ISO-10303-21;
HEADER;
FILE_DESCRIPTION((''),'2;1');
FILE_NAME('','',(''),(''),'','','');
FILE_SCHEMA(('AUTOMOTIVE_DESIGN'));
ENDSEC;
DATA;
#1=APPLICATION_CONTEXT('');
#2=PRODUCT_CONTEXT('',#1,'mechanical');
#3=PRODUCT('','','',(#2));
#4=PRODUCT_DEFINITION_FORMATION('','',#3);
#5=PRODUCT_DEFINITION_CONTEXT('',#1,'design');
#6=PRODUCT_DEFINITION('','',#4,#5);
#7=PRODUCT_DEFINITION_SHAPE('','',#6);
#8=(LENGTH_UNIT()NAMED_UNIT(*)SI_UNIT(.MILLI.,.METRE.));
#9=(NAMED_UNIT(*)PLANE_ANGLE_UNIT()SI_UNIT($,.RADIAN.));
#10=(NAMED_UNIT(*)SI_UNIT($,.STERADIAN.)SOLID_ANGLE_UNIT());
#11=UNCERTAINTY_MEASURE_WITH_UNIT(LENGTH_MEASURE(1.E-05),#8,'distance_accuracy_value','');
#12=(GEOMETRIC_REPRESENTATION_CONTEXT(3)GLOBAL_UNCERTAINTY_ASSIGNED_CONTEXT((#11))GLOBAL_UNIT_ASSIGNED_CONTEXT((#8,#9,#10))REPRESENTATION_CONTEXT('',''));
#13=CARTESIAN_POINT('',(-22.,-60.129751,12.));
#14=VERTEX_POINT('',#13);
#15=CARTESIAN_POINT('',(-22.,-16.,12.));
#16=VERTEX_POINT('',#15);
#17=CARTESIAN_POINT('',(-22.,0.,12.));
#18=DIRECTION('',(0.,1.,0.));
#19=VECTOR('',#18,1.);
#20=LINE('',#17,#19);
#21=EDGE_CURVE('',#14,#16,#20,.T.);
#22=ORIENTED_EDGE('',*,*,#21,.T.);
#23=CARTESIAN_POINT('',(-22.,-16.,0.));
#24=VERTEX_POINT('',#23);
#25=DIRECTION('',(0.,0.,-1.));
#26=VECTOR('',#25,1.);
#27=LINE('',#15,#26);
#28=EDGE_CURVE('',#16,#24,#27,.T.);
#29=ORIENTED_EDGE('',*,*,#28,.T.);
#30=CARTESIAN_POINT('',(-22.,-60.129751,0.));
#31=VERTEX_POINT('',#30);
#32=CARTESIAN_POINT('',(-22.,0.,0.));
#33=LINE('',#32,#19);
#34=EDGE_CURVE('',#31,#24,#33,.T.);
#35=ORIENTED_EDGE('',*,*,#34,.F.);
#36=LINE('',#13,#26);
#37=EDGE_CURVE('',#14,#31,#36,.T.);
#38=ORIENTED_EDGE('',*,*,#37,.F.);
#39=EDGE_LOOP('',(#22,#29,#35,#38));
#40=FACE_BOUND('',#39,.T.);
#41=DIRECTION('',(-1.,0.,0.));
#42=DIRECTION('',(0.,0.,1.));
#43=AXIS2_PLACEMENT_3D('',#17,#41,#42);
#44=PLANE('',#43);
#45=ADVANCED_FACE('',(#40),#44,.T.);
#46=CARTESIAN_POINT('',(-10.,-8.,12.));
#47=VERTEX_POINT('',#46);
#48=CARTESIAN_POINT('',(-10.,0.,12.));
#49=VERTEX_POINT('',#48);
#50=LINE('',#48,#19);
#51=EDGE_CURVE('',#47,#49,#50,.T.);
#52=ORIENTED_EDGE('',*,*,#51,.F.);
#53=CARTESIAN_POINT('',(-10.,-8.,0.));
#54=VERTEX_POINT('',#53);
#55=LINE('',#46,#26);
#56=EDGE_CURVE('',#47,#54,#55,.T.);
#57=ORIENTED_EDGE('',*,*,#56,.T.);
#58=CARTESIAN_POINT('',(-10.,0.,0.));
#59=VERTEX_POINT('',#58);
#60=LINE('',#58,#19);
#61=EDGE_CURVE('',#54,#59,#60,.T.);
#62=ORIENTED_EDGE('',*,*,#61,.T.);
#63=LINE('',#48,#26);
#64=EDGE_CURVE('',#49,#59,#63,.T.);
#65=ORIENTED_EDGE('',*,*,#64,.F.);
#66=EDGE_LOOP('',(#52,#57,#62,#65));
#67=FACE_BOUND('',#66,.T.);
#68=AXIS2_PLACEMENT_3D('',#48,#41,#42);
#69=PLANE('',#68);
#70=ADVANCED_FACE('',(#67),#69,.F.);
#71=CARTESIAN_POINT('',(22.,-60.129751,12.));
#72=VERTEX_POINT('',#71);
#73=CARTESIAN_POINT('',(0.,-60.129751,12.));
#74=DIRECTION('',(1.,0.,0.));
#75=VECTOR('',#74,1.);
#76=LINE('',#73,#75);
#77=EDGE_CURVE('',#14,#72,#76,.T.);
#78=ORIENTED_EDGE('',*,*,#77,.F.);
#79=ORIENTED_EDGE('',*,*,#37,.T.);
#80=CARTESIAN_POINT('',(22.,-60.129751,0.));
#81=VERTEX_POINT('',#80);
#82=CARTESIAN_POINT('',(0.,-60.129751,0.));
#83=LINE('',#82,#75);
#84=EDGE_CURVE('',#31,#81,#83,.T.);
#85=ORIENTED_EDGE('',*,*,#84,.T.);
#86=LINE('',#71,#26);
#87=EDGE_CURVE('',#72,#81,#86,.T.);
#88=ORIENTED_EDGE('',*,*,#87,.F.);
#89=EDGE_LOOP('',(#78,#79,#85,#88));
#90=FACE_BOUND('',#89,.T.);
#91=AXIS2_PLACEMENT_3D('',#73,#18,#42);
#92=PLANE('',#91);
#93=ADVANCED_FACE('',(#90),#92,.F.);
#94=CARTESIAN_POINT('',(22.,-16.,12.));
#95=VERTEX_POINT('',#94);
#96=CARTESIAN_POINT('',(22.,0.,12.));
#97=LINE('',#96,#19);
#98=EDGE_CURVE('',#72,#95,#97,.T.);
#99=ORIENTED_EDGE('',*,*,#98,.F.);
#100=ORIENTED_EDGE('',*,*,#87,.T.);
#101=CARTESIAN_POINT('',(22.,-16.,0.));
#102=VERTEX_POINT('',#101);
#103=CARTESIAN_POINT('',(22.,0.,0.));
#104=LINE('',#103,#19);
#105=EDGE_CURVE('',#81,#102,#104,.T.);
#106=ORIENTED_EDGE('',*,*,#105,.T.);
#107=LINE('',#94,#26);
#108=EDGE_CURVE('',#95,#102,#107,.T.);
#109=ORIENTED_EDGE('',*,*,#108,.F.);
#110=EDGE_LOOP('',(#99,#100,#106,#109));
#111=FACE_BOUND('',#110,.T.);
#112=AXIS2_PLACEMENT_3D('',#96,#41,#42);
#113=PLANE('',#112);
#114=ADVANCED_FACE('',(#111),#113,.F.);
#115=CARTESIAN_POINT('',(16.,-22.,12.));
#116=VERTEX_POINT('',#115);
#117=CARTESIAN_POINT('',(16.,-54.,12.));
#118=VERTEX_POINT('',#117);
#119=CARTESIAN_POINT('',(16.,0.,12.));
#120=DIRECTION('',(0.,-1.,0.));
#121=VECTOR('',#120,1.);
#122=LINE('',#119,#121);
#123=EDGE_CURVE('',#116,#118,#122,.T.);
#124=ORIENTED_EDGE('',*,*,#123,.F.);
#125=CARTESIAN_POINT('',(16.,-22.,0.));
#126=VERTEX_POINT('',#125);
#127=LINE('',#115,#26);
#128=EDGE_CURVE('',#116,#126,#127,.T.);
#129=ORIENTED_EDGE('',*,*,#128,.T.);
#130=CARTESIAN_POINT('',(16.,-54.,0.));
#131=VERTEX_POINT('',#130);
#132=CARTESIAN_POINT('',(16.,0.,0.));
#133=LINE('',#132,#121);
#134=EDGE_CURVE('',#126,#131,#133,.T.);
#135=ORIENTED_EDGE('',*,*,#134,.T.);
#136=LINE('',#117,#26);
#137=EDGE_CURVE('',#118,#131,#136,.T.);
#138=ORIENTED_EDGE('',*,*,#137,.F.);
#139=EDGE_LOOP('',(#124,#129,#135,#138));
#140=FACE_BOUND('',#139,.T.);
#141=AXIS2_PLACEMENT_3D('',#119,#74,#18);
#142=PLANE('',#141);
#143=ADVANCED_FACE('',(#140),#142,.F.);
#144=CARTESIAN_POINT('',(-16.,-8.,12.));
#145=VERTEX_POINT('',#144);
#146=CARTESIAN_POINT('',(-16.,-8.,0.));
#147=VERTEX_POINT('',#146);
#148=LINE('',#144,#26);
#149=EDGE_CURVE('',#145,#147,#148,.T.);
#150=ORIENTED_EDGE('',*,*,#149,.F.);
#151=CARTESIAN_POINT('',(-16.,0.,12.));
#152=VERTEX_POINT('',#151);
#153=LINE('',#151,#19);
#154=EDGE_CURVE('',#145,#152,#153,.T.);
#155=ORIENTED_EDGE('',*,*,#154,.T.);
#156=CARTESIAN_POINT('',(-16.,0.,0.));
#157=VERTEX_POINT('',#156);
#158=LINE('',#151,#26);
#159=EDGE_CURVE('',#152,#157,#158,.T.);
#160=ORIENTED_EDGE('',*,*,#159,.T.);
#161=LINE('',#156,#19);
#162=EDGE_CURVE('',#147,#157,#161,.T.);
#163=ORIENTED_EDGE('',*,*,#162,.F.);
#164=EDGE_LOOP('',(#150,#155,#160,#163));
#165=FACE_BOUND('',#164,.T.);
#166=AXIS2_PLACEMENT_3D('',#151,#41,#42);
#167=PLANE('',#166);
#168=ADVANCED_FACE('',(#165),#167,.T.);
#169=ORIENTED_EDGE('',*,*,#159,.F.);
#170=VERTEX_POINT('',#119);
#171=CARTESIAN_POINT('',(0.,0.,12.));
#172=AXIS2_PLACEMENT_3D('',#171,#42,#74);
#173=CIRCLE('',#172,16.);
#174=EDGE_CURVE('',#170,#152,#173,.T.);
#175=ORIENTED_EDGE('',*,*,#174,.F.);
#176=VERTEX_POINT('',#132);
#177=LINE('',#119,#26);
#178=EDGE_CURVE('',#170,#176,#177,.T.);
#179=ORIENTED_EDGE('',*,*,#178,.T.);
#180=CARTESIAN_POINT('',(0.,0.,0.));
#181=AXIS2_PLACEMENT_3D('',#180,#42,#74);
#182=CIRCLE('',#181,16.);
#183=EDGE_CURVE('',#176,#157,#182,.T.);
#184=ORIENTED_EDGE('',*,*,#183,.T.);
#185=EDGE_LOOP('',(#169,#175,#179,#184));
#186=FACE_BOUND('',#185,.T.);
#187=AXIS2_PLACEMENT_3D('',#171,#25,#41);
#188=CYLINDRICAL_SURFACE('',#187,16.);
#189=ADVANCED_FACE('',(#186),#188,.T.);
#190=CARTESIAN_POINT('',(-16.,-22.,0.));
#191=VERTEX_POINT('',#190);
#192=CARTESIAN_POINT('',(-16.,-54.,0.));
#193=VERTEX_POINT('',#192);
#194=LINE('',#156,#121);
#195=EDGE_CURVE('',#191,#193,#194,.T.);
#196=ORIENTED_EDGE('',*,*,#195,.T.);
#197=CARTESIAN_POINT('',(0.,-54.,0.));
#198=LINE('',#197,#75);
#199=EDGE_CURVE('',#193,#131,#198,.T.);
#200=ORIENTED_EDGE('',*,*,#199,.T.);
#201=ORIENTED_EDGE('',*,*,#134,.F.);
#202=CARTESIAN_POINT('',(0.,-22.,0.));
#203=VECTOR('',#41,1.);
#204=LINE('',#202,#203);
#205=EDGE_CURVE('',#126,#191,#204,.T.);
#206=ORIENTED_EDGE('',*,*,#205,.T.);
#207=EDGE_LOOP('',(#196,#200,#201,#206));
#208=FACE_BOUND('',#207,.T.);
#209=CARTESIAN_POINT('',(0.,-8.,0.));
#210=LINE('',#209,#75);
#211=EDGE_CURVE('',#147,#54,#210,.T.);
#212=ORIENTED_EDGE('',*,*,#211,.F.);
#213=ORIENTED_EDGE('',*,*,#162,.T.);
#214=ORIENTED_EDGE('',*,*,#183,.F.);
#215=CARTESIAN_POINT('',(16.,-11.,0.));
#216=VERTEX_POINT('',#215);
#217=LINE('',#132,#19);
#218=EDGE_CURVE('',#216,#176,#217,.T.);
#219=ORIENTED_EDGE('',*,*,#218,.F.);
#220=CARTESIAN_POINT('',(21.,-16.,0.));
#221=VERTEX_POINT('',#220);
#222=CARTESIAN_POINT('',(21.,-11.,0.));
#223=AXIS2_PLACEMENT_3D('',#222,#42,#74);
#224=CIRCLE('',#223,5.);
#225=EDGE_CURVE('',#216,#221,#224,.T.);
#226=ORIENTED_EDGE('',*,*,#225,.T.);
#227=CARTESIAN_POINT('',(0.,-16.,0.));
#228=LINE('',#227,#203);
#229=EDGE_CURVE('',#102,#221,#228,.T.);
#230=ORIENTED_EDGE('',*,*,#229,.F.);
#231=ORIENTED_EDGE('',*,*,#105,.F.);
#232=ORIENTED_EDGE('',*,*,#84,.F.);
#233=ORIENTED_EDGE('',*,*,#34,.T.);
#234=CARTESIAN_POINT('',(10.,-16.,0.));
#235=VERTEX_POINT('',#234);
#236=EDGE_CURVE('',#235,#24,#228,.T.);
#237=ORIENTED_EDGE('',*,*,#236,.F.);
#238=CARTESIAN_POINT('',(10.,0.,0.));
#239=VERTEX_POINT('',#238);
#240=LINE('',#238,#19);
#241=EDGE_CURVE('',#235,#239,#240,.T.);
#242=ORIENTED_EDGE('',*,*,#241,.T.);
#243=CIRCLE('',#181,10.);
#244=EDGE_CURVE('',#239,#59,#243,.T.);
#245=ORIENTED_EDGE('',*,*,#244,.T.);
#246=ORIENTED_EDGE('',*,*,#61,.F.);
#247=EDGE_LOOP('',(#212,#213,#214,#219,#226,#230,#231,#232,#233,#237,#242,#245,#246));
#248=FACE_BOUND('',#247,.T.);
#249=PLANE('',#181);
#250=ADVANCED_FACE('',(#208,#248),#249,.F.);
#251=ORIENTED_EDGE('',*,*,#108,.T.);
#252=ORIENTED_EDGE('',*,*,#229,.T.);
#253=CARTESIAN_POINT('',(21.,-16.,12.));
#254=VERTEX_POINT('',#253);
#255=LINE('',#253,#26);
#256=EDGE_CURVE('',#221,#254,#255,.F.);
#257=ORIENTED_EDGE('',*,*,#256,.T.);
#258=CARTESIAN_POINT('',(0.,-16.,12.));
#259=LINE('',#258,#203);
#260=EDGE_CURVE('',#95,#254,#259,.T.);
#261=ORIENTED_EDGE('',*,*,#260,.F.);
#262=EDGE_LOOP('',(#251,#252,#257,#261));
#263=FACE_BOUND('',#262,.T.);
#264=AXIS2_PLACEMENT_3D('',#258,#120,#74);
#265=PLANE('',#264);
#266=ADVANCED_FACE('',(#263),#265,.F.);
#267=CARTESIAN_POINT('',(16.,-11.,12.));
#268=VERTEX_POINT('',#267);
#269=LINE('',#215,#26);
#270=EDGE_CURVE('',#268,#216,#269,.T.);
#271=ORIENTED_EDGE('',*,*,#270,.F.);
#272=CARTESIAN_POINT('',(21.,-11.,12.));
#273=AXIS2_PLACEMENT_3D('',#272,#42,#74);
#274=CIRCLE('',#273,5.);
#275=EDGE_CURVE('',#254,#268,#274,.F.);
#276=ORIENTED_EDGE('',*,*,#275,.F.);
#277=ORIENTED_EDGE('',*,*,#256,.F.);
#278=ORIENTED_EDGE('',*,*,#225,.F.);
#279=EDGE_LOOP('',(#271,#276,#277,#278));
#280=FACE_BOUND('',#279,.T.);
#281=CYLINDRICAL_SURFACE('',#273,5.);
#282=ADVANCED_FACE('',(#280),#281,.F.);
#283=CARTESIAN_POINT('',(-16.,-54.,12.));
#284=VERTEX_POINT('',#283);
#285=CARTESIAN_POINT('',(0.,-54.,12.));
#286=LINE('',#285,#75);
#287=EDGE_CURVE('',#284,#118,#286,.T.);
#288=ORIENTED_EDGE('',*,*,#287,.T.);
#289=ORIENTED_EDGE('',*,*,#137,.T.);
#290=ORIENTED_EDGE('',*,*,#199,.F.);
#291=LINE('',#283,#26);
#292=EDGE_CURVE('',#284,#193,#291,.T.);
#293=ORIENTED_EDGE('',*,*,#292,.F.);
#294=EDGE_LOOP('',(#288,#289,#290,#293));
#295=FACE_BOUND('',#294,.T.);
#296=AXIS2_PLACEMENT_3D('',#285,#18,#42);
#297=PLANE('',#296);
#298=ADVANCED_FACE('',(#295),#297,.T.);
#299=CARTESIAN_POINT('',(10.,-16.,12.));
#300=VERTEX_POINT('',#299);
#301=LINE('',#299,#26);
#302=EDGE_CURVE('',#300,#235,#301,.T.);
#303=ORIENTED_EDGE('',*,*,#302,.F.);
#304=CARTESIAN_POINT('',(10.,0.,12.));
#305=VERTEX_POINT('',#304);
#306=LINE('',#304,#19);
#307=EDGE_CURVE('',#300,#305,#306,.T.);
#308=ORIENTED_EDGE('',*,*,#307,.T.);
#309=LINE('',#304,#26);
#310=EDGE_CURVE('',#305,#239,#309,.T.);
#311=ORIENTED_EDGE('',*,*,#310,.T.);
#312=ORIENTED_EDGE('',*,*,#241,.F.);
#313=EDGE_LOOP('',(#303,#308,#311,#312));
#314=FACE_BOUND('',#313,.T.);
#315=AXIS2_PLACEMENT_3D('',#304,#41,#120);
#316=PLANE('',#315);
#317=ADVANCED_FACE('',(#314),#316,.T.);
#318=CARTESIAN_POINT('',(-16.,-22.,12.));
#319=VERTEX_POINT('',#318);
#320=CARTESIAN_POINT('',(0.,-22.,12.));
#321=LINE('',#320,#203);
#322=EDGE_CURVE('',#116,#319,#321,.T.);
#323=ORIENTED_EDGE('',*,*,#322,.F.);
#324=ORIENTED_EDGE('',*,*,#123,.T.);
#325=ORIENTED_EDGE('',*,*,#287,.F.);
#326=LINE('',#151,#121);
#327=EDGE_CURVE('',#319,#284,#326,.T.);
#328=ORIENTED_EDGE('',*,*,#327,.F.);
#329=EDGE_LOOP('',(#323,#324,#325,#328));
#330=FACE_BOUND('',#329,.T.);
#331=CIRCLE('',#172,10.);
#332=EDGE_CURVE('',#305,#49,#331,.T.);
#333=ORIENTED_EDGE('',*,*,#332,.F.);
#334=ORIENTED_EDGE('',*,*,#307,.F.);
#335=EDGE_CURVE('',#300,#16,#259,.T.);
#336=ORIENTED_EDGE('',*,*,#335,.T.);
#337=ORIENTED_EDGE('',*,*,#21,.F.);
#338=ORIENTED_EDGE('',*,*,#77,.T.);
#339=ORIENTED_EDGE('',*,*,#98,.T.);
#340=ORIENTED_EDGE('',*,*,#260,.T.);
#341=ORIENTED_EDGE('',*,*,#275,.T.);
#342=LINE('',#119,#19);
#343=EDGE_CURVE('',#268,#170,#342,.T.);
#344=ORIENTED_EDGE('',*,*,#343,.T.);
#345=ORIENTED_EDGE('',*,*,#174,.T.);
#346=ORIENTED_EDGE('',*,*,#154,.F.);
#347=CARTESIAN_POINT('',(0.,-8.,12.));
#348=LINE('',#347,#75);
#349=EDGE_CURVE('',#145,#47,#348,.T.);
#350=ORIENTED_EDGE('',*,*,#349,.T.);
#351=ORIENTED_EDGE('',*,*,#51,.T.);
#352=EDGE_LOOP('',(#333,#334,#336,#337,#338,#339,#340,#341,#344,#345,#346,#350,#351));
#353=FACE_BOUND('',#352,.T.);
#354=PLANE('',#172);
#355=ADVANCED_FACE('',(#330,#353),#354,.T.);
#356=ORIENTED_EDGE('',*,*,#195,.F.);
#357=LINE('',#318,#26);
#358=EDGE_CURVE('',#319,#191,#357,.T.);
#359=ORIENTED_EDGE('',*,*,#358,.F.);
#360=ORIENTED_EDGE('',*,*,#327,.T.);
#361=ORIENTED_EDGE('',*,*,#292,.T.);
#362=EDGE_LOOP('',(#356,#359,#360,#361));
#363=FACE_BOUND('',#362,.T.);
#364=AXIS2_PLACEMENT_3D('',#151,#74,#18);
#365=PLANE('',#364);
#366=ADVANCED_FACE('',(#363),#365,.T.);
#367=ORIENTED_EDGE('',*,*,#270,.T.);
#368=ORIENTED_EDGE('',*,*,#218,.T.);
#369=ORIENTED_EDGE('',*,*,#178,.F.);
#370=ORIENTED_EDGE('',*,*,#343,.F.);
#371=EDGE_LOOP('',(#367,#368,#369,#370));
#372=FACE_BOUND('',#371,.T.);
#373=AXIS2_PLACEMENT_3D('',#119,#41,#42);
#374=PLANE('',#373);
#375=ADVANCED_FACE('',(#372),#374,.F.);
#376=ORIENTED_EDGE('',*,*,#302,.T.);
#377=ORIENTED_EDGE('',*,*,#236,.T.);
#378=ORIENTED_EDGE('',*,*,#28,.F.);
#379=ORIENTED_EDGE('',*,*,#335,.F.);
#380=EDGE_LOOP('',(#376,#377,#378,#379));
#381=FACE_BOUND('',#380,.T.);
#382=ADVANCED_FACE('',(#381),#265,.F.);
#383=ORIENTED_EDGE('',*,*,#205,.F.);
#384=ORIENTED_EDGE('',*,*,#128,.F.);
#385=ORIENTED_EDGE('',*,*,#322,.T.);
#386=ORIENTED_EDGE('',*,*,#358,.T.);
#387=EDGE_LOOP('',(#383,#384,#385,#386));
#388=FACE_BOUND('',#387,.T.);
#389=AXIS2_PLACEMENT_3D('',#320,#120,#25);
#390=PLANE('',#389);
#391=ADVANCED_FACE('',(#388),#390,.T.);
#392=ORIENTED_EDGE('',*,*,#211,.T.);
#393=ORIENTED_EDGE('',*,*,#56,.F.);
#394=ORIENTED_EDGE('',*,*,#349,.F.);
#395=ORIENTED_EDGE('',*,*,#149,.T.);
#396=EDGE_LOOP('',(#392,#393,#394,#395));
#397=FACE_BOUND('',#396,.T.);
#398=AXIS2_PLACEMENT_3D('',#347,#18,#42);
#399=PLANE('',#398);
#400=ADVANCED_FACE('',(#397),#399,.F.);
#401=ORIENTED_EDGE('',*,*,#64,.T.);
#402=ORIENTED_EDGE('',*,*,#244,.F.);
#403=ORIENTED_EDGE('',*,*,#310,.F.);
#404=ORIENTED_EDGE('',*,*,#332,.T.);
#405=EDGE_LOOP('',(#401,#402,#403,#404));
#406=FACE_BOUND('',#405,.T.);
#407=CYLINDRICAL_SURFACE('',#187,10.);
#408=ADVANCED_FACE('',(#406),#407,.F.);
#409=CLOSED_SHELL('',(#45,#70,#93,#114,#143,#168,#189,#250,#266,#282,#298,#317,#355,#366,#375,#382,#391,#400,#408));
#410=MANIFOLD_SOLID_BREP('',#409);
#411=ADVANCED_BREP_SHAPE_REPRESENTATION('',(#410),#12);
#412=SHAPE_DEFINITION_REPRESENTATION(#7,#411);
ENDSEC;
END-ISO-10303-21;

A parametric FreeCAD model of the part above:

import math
import FreeCAD as App
import Part
import Sketcher
from FreeCAD import Vector
Q = App.Units.Quantity


def edges_at(feature, points):
    """Names of the edges that pass closest to the given points."""
    edges = feature.Shape.Edges
    near = lambda p: min(range(len(edges)), key=lambda i: edges[i].distToShape(Part.Vertex(*p))[0])
    return sorted({f"Edge{near(p) + 1}" for p in points})

doc = App.newDocument("Part")
body = doc.addObject("PartDesign::Body", "Body")

sketch1 = doc.addObject("Sketcher::SketchObject", "Sketch")
body.addObject(sketch1)
sketch1.AttachmentSupport = (doc.XY_Plane, [""])
sketch1.MapMode = "FlatFace"
sketch1.addGeometry(Part.LineSegment(Vector(-16, -8, 0), Vector(-10, -8, 0)), False)
sketch1.addGeometry(Part.LineSegment(Vector(-10, -8, 0), Vector(-10, 0, 0)), False)
sketch1.addGeometry(Part.ArcOfCircle(Part.Circle(Vector(0, 0, 0), Vector(0, 0, 1), 10), math.radians(0), math.radians(180)), False)
sketch1.addGeometry(Part.LineSegment(Vector(10, 0, 0), Vector(10, -16, 0)), False)
sketch1.addGeometry(Part.LineSegment(Vector(10, -16, 0), Vector(-22, -16, 0)), False)
sketch1.addGeometry(Part.LineSegment(Vector(-22, -16, 0), Vector(-22, -60.129751, 0)), False)
sketch1.addGeometry(Part.LineSegment(Vector(-22, -60.129751, 0), Vector(22, -60.129751, 0)), False)
sketch1.addGeometry(Part.LineSegment(Vector(22, -60.129751, 0), Vector(22, -16, 0)), False)
sketch1.addGeometry(Part.LineSegment(Vector(22, -16, 0), Vector(16, -16, 0)), False)
sketch1.addGeometry(Part.LineSegment(Vector(16, -16, 0), Vector(16, 0, 0)), False)
sketch1.addGeometry(Part.ArcOfCircle(Part.Circle(Vector(0, 0, 0), Vector(0, 0, 1), 16), math.radians(0), math.radians(180)), False)
sketch1.addGeometry(Part.LineSegment(Vector(-16, 0, 0), Vector(-16, -8, 0)), False)
sketch1.addGeometry(Part.LineSegment(Vector(-16, -54, 0), Vector(-16, -22, 0)), False)
sketch1.addGeometry(Part.LineSegment(Vector(-16, -22, 0), Vector(16, -22, 0)), False)
sketch1.addGeometry(Part.LineSegment(Vector(16, -22, 0), Vector(16, -54, 0)), False)
sketch1.addGeometry(Part.LineSegment(Vector(16, -54, 0), Vector(-16, -54, 0)), False)
sketch1.addConstraint(Sketcher.Constraint("Coincident", 0, 2, 1, 1))
sketch1.addConstraint(Sketcher.Constraint("Tangent", 1, 2, 2, 2))
sketch1.addConstraint(Sketcher.Constraint("Tangent", 2, 1, 3, 1))
sketch1.addConstraint(Sketcher.Constraint("Coincident", 3, 2, 4, 1))
sketch1.addConstraint(Sketcher.Constraint("Coincident", 4, 2, 5, 1))
sketch1.addConstraint(Sketcher.Constraint("Coincident", 5, 2, 6, 1))
sketch1.addConstraint(Sketcher.Constraint("Coincident", 6, 2, 7, 1))
sketch1.addConstraint(Sketcher.Constraint("Coincident", 7, 2, 8, 1))
sketch1.addConstraint(Sketcher.Constraint("Coincident", 8, 2, 9, 1))
sketch1.addConstraint(Sketcher.Constraint("Tangent", 9, 2, 10, 1))
sketch1.addConstraint(Sketcher.Constraint("Tangent", 10, 2, 11, 1))
sketch1.addConstraint(Sketcher.Constraint("Coincident", 11, 2, 0, 1))
sketch1.addConstraint(Sketcher.Constraint("Coincident", 12, 2, 13, 1))
sketch1.addConstraint(Sketcher.Constraint("Coincident", 13, 2, 14, 1))
sketch1.addConstraint(Sketcher.Constraint("Coincident", 14, 2, 15, 1))
sketch1.addConstraint(Sketcher.Constraint("Coincident", 15, 2, 12, 1))
sketch1.addConstraint(Sketcher.Constraint("Horizontal", 0))
sketch1.addConstraint(Sketcher.Constraint("Vertical", 1))
sketch1.addConstraint(Sketcher.Constraint("Vertical", 3))
sketch1.addConstraint(Sketcher.Constraint("Horizontal", 4))
sketch1.addConstraint(Sketcher.Constraint("Vertical", 5))
sketch1.addConstraint(Sketcher.Constraint("Horizontal", 6))
sketch1.addConstraint(Sketcher.Constraint("Vertical", 7))
sketch1.addConstraint(Sketcher.Constraint("Horizontal", 8))
sketch1.addConstraint(Sketcher.Constraint("Vertical", 9))
sketch1.addConstraint(Sketcher.Constraint("Vertical", 11))
sketch1.addConstraint(Sketcher.Constraint("Vertical", 12))
sketch1.addConstraint(Sketcher.Constraint("Horizontal", 13))
sketch1.addConstraint(Sketcher.Constraint("Vertical", 14))
sketch1.addConstraint(Sketcher.Constraint("Horizontal", 15))
sketch1.addConstraint(Sketcher.Constraint("Coincident", 2, 3, -1, 1))
sketch1.addConstraint(Sketcher.Constraint("Coincident", 10, 3, -1, 1))
sketch1.addConstraint(Sketcher.Constraint("Symmetric", 4, 2, 7, 2, -2))
sketch1.addConstraint(Sketcher.Constraint("Vertical", 11, 2, 12, 2))
sketch1.addConstraint(Sketcher.Constraint("Vertical", 9, 2, 13, 2))
sketch1.addConstraint(Sketcher.Constraint("Equal", 0, 8))
sketch1.addConstraint(Sketcher.Constraint("Equal", 15, 12))
sketch1.addConstraint(Sketcher.Constraint("Radius", 2, Q("10 mm")))
sketch1.addConstraint(Sketcher.Constraint("Radius", 10, Q("16 mm")))
sketch1.addConstraint(Sketcher.Constraint("DistanceY", 1, 1, 1, 2, Q("8 mm")))
sketch1.addConstraint(Sketcher.Constraint("DistanceY", 3, 2, 3, 1, Q("16 mm")))
sketch1.addConstraint(Sketcher.Constraint("DistanceY", 12, 2, -1, 1, Q("22 mm")))
sketch1.addConstraint(Sketcher.Constraint("DistanceY", 5, 2, 5, 1, Q("44.129751 mm")))
pad1 = doc.addObject("PartDesign::Pad", "Pad")
body.addObject(pad1)
pad1.Profile = sketch1
pad1.Length = 12
doc.recompute()

fillet = doc.addObject("PartDesign::Fillet", "Fillet")
body.addObject(fillet)
fillet.Base = (pad1, edges_at(pad1, [(16, -16, 6)]))
fillet.Radius = 5

doc.recompute()
